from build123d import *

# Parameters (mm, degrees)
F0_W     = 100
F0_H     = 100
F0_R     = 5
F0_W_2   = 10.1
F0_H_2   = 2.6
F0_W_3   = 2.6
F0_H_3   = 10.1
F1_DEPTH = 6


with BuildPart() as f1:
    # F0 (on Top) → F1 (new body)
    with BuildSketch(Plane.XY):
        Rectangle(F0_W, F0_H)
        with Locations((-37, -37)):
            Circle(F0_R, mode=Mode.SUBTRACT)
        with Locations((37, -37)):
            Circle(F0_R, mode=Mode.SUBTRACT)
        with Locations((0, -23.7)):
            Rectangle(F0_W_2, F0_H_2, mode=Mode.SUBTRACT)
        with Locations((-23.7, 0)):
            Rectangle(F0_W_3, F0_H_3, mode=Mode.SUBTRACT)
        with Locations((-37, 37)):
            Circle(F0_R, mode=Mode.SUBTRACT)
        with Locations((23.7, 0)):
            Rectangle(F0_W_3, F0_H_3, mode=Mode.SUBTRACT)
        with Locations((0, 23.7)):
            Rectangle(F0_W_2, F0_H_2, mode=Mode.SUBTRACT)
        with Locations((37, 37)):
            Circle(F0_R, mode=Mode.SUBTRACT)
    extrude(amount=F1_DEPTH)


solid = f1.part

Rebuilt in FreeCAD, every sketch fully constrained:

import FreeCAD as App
import Part
import Sketcher
from FreeCAD import Vector

doc = App.newDocument("Part")
body = doc.addObject("PartDesign::Body", "Body")

# Sketch on XY plane
sketch1 = body.newObject("Sketcher::SketchObject", "Sketch")
sketch1.AttachmentSupport = (doc.getObject("XY_Plane"), [""])
sketch1.MapMode = "FlatFace"
sketch1.addGeometry([
    Part.LineSegment(Vector(-50, 50, 0), Vector(-50, -50, 0)),  # 0
    Part.LineSegment(Vector(-50, -50, 0), Vector(50, -50, 0)),  # 1
    Part.LineSegment(Vector(50, -50, 0), Vector(50, 50, 0)),  # 2
    Part.LineSegment(Vector(50, 50, 0), Vector(-50, 50, 0)),  # 3
    Part.Circle(Vector(-37, -37, 0), Vector(0, 0, 1), 5),  # 4
    Part.LineSegment(Vector(5, -25, 0), Vector(-5, -25, 0)),  # 5
    Part.LineSegment(Vector(-5, -25, 0), Vector(-5, -22.4, 0)),  # 6
    Part.LineSegment(Vector(-5, -22.4, 0), Vector(5, -22.4, 0)),  # 7
    Part.LineSegment(Vector(5, -22.4, 0), Vector(5, -25, 0)),  # 8
    Part.Circle(Vector(37, -37, 0), Vector(0, 0, 1), 5),  # 9
    Part.LineSegment(Vector(-22.4, -5, 0), Vector(-25, -5, 0)),  # 10
    Part.LineSegment(Vector(-25, -5, 0), Vector(-25, 5, 0)),  # 11
    Part.LineSegment(Vector(-25, 5, 0), Vector(-22.4, 5, 0)),  # 12
    Part.LineSegment(Vector(-22.4, 5, 0), Vector(-22.4, -5, 0)),  # 13
    Part.Circle(Vector(-37, 37, 0), Vector(0, 0, 1), 5),  # 14
    Part.LineSegment(Vector(25, -5, 0), Vector(22.4, -5, 0)),  # 15
    Part.LineSegment(Vector(22.4, -5, 0), Vector(22.4, 5, 0)),  # 16
    Part.LineSegment(Vector(22.4, 5, 0), Vector(25, 5, 0)),  # 17
    Part.LineSegment(Vector(25, 5, 0), Vector(25, -5, 0)),  # 18
    Part.LineSegment(Vector(5, 22.4, 0), Vector(-5, 22.4, 0)),  # 19
    Part.LineSegment(Vector(-5, 22.4, 0), Vector(-5, 25, 0)),  # 20
    Part.LineSegment(Vector(-5, 25, 0), Vector(5, 25, 0)),  # 21
    Part.LineSegment(Vector(5, 25, 0), Vector(5, 22.4, 0)),  # 22
    Part.Circle(Vector(37, 37, 0), Vector(0, 0, 1), 5),  # 23
], False)
sketch1.addConstraint([
    Sketcher.Constraint("Coincident", 0, 2, 1, 1),
    Sketcher.Constraint("Coincident", 1, 2, 2, 1),
    Sketcher.Constraint("Coincident", 2, 2, 3, 1),
    Sketcher.Constraint("Coincident", 3, 2, 0, 1),
    Sketcher.Constraint("Coincident", 5, 2, 6, 1),
    Sketcher.Constraint("Coincident", 6, 2, 7, 1),
    Sketcher.Constraint("Coincident", 7, 2, 8, 1),
    Sketcher.Constraint("Coincident", 8, 2, 5, 1),
    Sketcher.Constraint("Coincident", 10, 2, 11, 1),
    Sketcher.Constraint("Coincident", 11, 2, 12, 1),
    Sketcher.Constraint("Coincident", 12, 2, 13, 1),
    Sketcher.Constraint("Coincident", 13, 2, 10, 1),
    Sketcher.Constraint("Coincident", 15, 2, 16, 1),
    Sketcher.Constraint("Coincident", 16, 2, 17, 1),
    Sketcher.Constraint("Coincident", 17, 2, 18, 1),
    Sketcher.Constraint("Coincident", 18, 2, 15, 1),
    Sketcher.Constraint("Coincident", 19, 2, 20, 1),
    Sketcher.Constraint("Coincident", 20, 2, 21, 1),
    Sketcher.Constraint("Coincident", 21, 2, 22, 1),
    Sketcher.Constraint("Coincident", 22, 2, 19, 1),
    Sketcher.Constraint("Vertical", 0),
    Sketcher.Constraint("Horizontal", 1),
    Sketcher.Constraint("Vertical", 2),
    Sketcher.Constraint("Horizontal", 3),
    Sketcher.Constraint("Horizontal", 5),
    Sketcher.Constraint("Vertical", 6),
    Sketcher.Constraint("Horizontal", 7),
    Sketcher.Constraint("Vertical", 8),
    Sketcher.Constraint("Horizontal", 10),
    Sketcher.Constraint("Vertical", 11),
    Sketcher.Constraint("Horizontal", 12),
    Sketcher.Constraint("Vertical", 13),
    Sketcher.Constraint("Horizontal", 15),
    Sketcher.Constraint("Vertical", 16),
    Sketcher.Constraint("Horizontal", 17),
    Sketcher.Constraint("Vertical", 18),
    Sketcher.Constraint("Horizontal", 19),
    Sketcher.Constraint("Vertical", 20),
    Sketcher.Constraint("Horizontal", 21),
    Sketcher.Constraint("Vertical", 22),
    Sketcher.Constraint("Equal", 4, 9),
    Sketcher.Constraint("Equal", 9, 14),
    Sketcher.Constraint("Equal", 14, 23),
    Sketcher.Constraint("Symmetric", 9, 3, 14, 3, -1, 1),
    Sketcher.Constraint("Symmetric", 4, 3, 23, 3, -1, 1),
    Sketcher.Constraint("Symmetric", 0, 2, 2, 2, -1, 1),
    Sketcher.Constraint("Symmetric", 12, 2, 15, 2, -1, 1),
    Sketcher.Constraint("Symmetric", 10, 2, 17, 2, -1, 1),
    Sketcher.Constraint("Symmetric", 7, 2, 19, 2, -1, 1),
    Sketcher.Constraint("Symmetric", 5, 2, 21, 2, -1, 1),
    Sketcher.Constraint("Symmetric", 4, 3, 9, 3, -2),
    Sketcher.Constraint("Horizontal", 13, 2, 15, 2),
    Sketcher.Constraint("Vertical", 6, 2, 19, 2),
    Sketcher.Constraint("Equal", 3, 0),
    Sketcher.Constraint("Equal", 17, 6),
    Sketcher.Constraint("Equal", 21, 11),
    Sketcher.Constraint("Diameter", 4, 10.0),
    Sketcher.Constraint("DistanceX", 1, 1, 1, 2, 100.0),
    Sketcher.Constraint("DistanceX", 5, 2, 5, 1, 10.1),
    Sketcher.Constraint("DistanceX", 10, 2, 10, 1, 2.6),
    Sketcher.Constraint("DistanceX", 4, 3, -1, 1, 37.0),
    Sketcher.Constraint("DistanceY", 4, 3, -1, 1, 37.0),
    Sketcher.Constraint("DistanceY", 5, 2, -1, 1, 25.0),
    Sketcher.Constraint("DistanceX", 10, 2, -1, 1, 25.0),
])
pad1 = body.newObject("PartDesign::Pad", "Pad")
pad1.Profile = sketch1
pad1.Length = 6

doc.recompute()
